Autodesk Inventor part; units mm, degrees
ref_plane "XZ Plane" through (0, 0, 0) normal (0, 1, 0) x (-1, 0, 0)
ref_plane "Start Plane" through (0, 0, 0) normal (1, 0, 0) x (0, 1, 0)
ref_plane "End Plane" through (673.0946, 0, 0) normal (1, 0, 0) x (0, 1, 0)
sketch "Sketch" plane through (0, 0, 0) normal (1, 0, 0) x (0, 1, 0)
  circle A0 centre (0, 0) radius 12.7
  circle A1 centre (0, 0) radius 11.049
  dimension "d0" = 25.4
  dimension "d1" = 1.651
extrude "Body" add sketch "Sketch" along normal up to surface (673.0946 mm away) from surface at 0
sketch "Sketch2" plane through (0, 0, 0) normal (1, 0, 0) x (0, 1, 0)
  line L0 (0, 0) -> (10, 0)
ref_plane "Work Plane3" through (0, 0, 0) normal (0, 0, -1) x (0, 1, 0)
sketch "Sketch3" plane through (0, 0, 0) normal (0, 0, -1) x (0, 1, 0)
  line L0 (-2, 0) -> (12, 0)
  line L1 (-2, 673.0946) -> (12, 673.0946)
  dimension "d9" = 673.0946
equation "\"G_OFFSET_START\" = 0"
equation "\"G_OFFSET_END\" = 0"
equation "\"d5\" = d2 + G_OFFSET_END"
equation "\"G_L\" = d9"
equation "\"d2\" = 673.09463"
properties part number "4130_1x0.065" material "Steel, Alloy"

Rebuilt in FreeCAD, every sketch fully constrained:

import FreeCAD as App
import Part
import Sketcher

V = App.Vector
Q = App.Units.Quantity

doc = App.newDocument("Part")
body = doc.addObject("PartDesign::Body", "Body")

# Sketch on YZ plane
sketch1 = doc.addObject("Sketcher::SketchObject", "Sketch")
body.addObject(sketch1)
sketch1.AttachmentSupport = (doc.YZ_Plane, [""])
sketch1.MapMode = "FlatFace"
sketch1.addGeometry([
    Part.Circle(V(0, 0, 0), V(0, 0, 1), 13),
    Part.Circle(V(0, 0, 0), V(0, 0, 1), 11),
], False)
sketch1.addConstraint([
    Sketcher.Constraint("Coincident", 0, 3, -1, 1),
    Sketcher.Constraint("Coincident", 1, 3, -1, 1),
    Sketcher.Constraint("Diameter", 0, Q("1 in")),
    Sketcher.Constraint("Diameter", 1, Q("0.87 in")),
])
pad1 = doc.addObject("PartDesign::Pad", "Pad")
body.addObject(pad1)
pad1.Profile = sketch1
pad1.Length = 673.0946

doc.recompute()
